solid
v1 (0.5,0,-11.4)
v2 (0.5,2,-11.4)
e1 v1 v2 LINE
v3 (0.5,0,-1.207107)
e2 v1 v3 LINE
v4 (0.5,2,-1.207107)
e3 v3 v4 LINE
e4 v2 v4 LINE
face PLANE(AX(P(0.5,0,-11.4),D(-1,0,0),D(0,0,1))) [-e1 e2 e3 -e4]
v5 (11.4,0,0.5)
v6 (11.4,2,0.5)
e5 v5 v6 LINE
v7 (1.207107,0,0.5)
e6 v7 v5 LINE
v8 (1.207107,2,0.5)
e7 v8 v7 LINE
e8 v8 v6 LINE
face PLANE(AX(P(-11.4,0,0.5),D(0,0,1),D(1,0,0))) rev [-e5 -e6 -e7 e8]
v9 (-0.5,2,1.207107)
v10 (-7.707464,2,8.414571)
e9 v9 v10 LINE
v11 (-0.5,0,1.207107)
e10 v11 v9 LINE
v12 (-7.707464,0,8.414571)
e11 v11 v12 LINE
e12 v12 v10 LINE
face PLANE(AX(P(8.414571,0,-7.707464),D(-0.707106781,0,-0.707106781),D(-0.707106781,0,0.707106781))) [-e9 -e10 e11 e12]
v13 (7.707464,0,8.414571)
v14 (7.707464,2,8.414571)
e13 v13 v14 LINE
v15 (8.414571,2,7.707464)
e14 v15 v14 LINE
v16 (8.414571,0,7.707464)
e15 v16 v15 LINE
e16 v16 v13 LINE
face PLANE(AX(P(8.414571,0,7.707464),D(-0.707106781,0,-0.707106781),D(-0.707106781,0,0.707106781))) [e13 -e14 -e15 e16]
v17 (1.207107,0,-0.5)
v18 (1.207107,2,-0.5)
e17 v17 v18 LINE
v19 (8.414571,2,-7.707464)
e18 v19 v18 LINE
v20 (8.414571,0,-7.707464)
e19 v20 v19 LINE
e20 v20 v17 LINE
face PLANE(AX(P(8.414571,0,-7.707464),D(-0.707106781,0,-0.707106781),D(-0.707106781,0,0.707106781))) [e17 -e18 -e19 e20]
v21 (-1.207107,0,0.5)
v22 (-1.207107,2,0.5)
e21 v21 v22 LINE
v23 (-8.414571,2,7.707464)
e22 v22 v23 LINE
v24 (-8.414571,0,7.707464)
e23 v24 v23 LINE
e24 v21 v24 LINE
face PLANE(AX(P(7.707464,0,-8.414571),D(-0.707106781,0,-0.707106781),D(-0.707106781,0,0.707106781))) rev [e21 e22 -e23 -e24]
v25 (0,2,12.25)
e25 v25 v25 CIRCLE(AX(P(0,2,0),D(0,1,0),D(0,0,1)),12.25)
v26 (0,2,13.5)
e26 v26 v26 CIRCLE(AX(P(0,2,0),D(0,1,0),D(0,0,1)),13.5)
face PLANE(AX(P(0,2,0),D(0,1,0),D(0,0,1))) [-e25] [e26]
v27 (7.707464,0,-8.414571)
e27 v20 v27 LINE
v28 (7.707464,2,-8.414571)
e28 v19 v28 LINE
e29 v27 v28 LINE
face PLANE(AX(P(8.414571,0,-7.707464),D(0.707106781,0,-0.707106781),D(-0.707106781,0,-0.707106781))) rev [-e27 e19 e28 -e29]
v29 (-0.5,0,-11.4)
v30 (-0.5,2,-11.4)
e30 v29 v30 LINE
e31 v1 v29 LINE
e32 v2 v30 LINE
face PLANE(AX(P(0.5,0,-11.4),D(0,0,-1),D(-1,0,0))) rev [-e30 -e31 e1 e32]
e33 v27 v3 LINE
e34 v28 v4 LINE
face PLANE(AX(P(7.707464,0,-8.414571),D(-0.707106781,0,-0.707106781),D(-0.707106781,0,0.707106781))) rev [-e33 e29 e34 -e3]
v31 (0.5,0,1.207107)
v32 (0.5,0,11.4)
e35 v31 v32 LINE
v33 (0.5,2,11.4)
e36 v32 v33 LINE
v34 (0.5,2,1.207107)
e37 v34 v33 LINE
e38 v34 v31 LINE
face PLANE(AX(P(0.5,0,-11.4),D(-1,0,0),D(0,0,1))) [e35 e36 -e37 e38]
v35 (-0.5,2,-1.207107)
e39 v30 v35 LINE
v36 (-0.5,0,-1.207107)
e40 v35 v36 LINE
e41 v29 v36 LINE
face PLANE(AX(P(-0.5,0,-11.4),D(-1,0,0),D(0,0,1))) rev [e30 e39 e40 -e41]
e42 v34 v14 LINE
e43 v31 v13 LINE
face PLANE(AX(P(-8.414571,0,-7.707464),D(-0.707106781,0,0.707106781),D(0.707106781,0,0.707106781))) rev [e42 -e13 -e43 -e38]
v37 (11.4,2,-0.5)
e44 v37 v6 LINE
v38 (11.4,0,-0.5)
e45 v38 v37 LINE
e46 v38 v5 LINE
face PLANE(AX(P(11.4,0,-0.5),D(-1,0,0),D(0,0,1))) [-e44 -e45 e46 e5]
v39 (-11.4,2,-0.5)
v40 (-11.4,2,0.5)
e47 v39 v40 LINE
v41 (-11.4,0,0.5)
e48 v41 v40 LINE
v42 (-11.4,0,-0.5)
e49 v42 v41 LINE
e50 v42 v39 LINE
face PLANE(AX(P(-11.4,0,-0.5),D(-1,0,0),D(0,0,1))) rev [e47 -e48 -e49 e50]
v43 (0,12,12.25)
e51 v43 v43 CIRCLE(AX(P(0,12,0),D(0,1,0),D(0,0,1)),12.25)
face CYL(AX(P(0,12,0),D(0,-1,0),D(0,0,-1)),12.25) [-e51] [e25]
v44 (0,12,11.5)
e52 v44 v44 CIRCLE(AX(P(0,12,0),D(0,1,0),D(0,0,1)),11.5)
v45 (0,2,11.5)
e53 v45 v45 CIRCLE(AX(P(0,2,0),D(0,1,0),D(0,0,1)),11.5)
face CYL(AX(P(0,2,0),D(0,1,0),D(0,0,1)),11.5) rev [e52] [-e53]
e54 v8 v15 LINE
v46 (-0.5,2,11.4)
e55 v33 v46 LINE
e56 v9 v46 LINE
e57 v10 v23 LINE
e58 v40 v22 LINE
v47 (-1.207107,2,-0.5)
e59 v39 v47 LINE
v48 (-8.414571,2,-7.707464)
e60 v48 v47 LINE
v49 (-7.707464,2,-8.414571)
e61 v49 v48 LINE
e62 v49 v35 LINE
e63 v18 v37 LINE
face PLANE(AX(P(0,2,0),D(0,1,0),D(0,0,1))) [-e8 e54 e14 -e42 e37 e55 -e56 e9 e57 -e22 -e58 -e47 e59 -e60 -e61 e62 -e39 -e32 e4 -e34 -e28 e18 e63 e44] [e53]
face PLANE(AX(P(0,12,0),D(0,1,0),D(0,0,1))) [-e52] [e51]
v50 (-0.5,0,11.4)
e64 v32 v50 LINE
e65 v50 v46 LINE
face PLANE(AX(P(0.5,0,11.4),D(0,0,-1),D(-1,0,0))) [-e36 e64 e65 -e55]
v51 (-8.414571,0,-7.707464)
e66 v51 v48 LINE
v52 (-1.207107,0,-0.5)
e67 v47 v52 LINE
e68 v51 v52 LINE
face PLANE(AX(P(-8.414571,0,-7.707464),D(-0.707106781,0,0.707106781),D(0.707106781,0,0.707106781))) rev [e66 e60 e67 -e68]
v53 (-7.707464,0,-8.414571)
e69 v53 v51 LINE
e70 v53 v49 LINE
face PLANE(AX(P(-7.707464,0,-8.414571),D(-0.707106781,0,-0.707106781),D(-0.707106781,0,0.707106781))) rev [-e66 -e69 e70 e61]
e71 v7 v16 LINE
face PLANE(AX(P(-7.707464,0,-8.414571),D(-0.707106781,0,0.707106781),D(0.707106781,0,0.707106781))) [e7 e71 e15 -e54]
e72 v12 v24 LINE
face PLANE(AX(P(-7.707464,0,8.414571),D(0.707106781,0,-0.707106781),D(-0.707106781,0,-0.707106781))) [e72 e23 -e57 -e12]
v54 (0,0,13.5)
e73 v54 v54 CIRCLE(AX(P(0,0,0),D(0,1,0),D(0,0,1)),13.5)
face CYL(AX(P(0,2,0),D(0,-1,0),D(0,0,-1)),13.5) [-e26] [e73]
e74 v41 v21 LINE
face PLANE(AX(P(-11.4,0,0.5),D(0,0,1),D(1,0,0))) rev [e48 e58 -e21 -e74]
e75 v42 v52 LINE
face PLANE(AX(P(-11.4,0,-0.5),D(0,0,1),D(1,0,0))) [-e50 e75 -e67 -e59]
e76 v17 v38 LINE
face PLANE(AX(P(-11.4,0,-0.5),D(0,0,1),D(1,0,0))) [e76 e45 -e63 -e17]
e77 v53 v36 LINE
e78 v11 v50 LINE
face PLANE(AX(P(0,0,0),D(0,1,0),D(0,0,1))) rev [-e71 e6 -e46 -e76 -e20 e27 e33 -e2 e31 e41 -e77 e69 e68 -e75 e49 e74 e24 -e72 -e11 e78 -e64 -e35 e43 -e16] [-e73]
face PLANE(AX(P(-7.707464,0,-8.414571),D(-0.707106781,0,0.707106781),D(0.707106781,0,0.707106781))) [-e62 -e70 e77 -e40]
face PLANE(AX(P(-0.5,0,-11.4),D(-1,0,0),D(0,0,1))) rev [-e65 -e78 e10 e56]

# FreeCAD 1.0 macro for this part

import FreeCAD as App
import Part
import Sketcher
Q = App.Units.Quantity


def add_polygon(sketch, points):
    """Adds a closed chain of lines whose ends are joined by coincident constraints."""
    first, n = sketch.GeometryCount, len(points)
    for a, b in zip(points, points[1:] + points[:1]):
        sketch.addGeometry(Part.LineSegment(App.Vector(*a, 0), App.Vector(*b, 0)), False)
    for i in range(n):
        sketch.addConstraint(Sketcher.Constraint("Coincident", first + i, 2, first + (i + 1) % n, 1))

doc = App.newDocument("Part")
body = doc.addObject("PartDesign::Body", "Body")

sketch1 = body.newObject("Sketcher::SketchObject", "Sketch")
sketch1.AttachmentSupport = (doc.getObject("XZ_Plane"), [""])
sketch1.MapMode = "FlatFace"
sketch1.addGeometry(Part.Circle(App.Vector(0, 0, 0), App.Vector(0, 0, 1), 13.5), False)
sketch1.addConstraint(Sketcher.Constraint("Coincident", 0, 3, -1, 1))
sketch1.addConstraint(Sketcher.Constraint("Diameter", 0, Q("27 mm")))
pad1 = body.newObject("PartDesign::Pad", "Pad")
pad1.Profile = sketch1
pad1.Length = 2
pad1.Reversed = True

sketch2 = body.newObject("Sketcher::SketchObject", "Sketch001")
sketch2.AttachmentSupport = (doc.getObject("XZ_Plane"), [""])
sketch2.MapMode = "FlatFace"
sketch2.AttachmentOffset = App.Placement(App.Vector(0, 0, -2), App.Rotation())
add_polygon(sketch2, [(-0.5, -11.4), (-0.5, -1.207107), (-7.707464, -8.414571), (-8.414571, -7.707464), (-1.207107, -0.5), (-11.4, -0.5), (-11.4, 0.5), (-1.207107, 0.5), (-8.414571, 7.707464), (-7.707464, 8.414571), (-0.5, 1.207107), (-0.5, 11.4), (0.5, 11.4), (0.5, 1.207107), (7.707464, 8.414571), (8.414571, 7.707464), (1.207107, 0.5), (11.4, 0.5), (11.4, -0.5), (1.207107, -0.5), (8.414571, -7.707464), (7.707464, -8.414571), (0.5, -1.207107), (0.5, -11.4)])
sketch2.addConstraint(Sketcher.Constraint("Vertical", 0))
sketch2.addConstraint(Sketcher.Constraint("Horizontal", 4))
sketch2.addConstraint(Sketcher.Constraint("Vertical", 5))
sketch2.addConstraint(Sketcher.Constraint("Horizontal", 6))
sketch2.addConstraint(Sketcher.Constraint("Vertical", 10))
sketch2.addConstraint(Sketcher.Constraint("Horizontal", 11))
sketch2.addConstraint(Sketcher.Constraint("Vertical", 12))
sketch2.addConstraint(Sketcher.Constraint("Horizontal", 16))
sketch2.addConstraint(Sketcher.Constraint("Vertical", 17))
sketch2.addConstraint(Sketcher.Constraint("Horizontal", 18))
sketch2.addConstraint(Sketcher.Constraint("Vertical", 22))
sketch2.addConstraint(Sketcher.Constraint("Horizontal", 23))
sketch2.addConstraint(Sketcher.Constraint("Symmetric", 0, 2, 12, 2, -1, 1))
sketch2.addConstraint(Sketcher.Constraint("Symmetric", 1, 2, 13, 2, -1, 1))
sketch2.addConstraint(Sketcher.Constraint("Symmetric", 2, 2, 14, 2, -1, 1))
sketch2.addConstraint(Sketcher.Constraint("Symmetric", 3, 2, 15, 2, -1, 1))
sketch2.addConstraint(Sketcher.Constraint("Symmetric", 5, 2, 17, 2, -1, 1))
sketch2.addConstraint(Sketcher.Constraint("Symmetric", 7, 2, 19, 2, -1, 1))
sketch2.addConstraint(Sketcher.Constraint("Symmetric", 8, 2, 20, 2, -1, 1))
sketch2.addConstraint(Sketcher.Constraint("Symmetric", 9, 2, 21, 2, -1, 1))
sketch2.addConstraint(Sketcher.Constraint("Symmetric", 9, 2, 12, 2, -2))
sketch2.addConstraint(Sketcher.Constraint("Symmetric", 8, 2, 13, 2, -2))
sketch2.addConstraint(Sketcher.Constraint("Symmetric", 7, 2, 14, 2, -2))
sketch2.addConstraint(Sketcher.Constraint("Symmetric", 6, 2, 15, 2, -2))
sketch2.addConstraint(Sketcher.Constraint("Perpendicular", 1, 2))
sketch2.addConstraint(Sketcher.Constraint("Perpendicular", 2, 3))
sketch2.addConstraint(Sketcher.Constraint("Perpendicular", 3, 7))
sketch2.addConstraint(Sketcher.Constraint("Perpendicular", 15, 19))
sketch2.addConstraint(Sketcher.Constraint("Equal", 18, 0))
sketch2.addConstraint(Sketcher.Constraint("Equal", 23, 5))
sketch2.addConstraint(Sketcher.Constraint("Equal", 0, 10))
sketch2.addConstraint(Sketcher.Constraint("Equal", 1, 3))
sketch2.addConstraint(Sketcher.Constraint("DistanceX", 11, 1, 11, 2, Q("1 mm")))
sketch2.addConstraint(Sketcher.Constraint("Distance", 2, Q("1 mm")))
sketch2.addConstraint(Sketcher.Constraint("DistanceX", 4, 2, -1, 1, Q("11.4 mm")))
sketch2.addConstraint(Sketcher.Constraint("DistanceY", 1, 2, -1, 1, Q("8.414571 mm")))
pocket1 = body.newObject("PartDesign::Pocket", "Pocket")
pocket1.Profile = sketch2
pocket1.Length = 2
pocket1.Reversed = True

sketch3 = body.newObject("Sketcher::SketchObject", "Sketch002")
sketch3.AttachmentSupport = (doc.getObject("XZ_Plane"), [""])
sketch3.MapMode = "FlatFace"
sketch3.AttachmentOffset = App.Placement(App.Vector(0, 0, -2), App.Rotation())
sketch3.addGeometry(Part.Circle(App.Vector(0, 0, 0), App.Vector(0, 0, 1), 12.25), False)
sketch3.addConstraint(Sketcher.Constraint("Coincident", 0, 3, -1, 1))
sketch3.addConstraint(Sketcher.Constraint("Diameter", 0, Q("24.5 mm")))
pad2 = body.newObject("PartDesign::Pad", "Pad001")
pad2.Profile = sketch3
pad2.Length = 10
pad2.Reversed = True

sketch4 = body.newObject("Sketcher::SketchObject", "Sketch003")
sketch4.AttachmentSupport = (doc.getObject("XZ_Plane"), [""])
sketch4.MapMode = "FlatFace"
sketch4.AttachmentOffset = App.Placement(App.Vector(0, 0, -12), App.Rotation())
sketch4.addGeometry(Part.Circle(App.Vector(0, 0, 0), App.Vector(0, 0, 1), 11.5), False)
sketch4.addConstraint(Sketcher.Constraint("Coincident", 0, 3, -1, 1))
sketch4.addConstraint(Sketcher.Constraint("Diameter", 0, Q("23 mm")))
pocket2 = body.newObject("PartDesign::Pocket", "Pocket001")
pocket2.Profile = sketch4
pocket2.Length = 10
pocket2.Reversed = True

doc.recompute()
